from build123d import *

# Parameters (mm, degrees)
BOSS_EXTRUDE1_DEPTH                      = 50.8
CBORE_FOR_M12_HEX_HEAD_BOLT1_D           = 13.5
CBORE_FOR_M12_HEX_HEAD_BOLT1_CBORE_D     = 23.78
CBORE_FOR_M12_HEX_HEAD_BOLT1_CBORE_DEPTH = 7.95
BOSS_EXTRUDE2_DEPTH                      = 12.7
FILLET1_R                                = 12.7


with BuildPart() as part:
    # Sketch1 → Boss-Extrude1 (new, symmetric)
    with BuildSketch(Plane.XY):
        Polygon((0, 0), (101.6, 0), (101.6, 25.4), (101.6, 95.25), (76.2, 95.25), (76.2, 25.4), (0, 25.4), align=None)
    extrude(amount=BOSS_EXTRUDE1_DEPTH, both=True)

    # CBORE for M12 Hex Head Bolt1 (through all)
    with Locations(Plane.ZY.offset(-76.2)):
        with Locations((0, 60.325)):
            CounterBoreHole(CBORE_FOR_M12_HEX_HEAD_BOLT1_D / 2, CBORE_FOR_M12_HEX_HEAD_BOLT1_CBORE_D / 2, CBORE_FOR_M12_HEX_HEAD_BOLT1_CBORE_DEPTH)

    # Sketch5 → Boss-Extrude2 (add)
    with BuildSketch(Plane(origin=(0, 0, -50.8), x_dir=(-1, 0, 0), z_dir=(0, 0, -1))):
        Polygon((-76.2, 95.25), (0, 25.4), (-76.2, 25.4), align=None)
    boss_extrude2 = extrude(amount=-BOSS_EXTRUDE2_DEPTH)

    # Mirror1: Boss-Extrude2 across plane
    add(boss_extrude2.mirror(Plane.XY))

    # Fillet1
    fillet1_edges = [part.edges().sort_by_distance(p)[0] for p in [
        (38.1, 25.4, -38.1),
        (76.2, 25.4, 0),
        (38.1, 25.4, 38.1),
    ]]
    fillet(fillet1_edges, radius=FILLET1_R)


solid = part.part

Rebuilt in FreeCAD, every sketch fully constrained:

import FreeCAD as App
import Part
import Sketcher
Q = App.Units.Quantity


def edges_at(feature, points):
    """Names of the edges that pass closest to the given points."""
    edges = feature.Shape.Edges
    near = lambda p: min(range(len(edges)), key=lambda i: edges[i].distToShape(Part.Vertex(*p))[0])
    return sorted({f"Edge{near(p) + 1}" for p in points})

doc = App.newDocument("Part")
body = doc.addObject("PartDesign::Body", "Body")

# Sketch on XY plane
sketch1 = body.newObject("Sketcher::SketchObject", "Sketch")
sketch1.AttachmentSupport = (doc.getObject("XY_Plane"), [""])
sketch1.MapMode = "FlatFace"
sketch1.addGeometry(Part.LineSegment(App.Vector(0, 0, 0), App.Vector(101.6, 0, 0)), False)
sketch1.addGeometry(Part.LineSegment(App.Vector(101.6, 0, 0), App.Vector(101.6, 95.25, 0)), False)
sketch1.addGeometry(Part.LineSegment(App.Vector(101.6, 95.25, 0), App.Vector(76.2, 95.25, 0)), False)
sketch1.addGeometry(Part.LineSegment(App.Vector(76.2, 95.25, 0), App.Vector(76.2, 25.4, 0)), False)
sketch1.addGeometry(Part.LineSegment(App.Vector(76.2, 25.4, 0), App.Vector(0, 25.4, 0)), False)
sketch1.addGeometry(Part.LineSegment(App.Vector(0, 25.4, 0), App.Vector(0, 0, 0)), False)
sketch1.addConstraint(Sketcher.Constraint("Coincident", 0, 2, 1, 1))
sketch1.addConstraint(Sketcher.Constraint("Coincident", 1, 2, 2, 1))
sketch1.addConstraint(Sketcher.Constraint("Coincident", 2, 2, 3, 1))
sketch1.addConstraint(Sketcher.Constraint("Coincident", 3, 2, 4, 1))
sketch1.addConstraint(Sketcher.Constraint("Coincident", 4, 2, 5, 1))
sketch1.addConstraint(Sketcher.Constraint("Coincident", 5, 2, 0, 1))
sketch1.addConstraint(Sketcher.Constraint("Horizontal", 0))
sketch1.addConstraint(Sketcher.Constraint("Vertical", 1))
sketch1.addConstraint(Sketcher.Constraint("Horizontal", 2))
sketch1.addConstraint(Sketcher.Constraint("Vertical", 3))
sketch1.addConstraint(Sketcher.Constraint("Horizontal", 4))
sketch1.addConstraint(Sketcher.Constraint("Vertical", 5))
sketch1.addConstraint(Sketcher.Constraint("Coincident", 5, 2, -1, 1))
sketch1.addConstraint(Sketcher.Constraint("Equal", 2, 5))
sketch1.addConstraint(Sketcher.Constraint("DistanceX", 0, 1, 0, 2, Q("4 in")))
sketch1.addConstraint(Sketcher.Constraint("DistanceX", 2, 2, 2, 1, Q("1 in")))
sketch1.addConstraint(Sketcher.Constraint("DistanceY", 1, 1, 1, 2, Q("3.75 in")))
pad1 = body.newObject("PartDesign::Pad", "Pad")
pad1.Profile = sketch1
pad1.Length = Q("4 in")
pad1.Midplane = True

# Sketch on YZ plane
sketch2 = body.newObject("Sketcher::SketchObject", "Sketch001")
sketch2.AttachmentSupport = (doc.getObject("YZ_Plane"), [""])
sketch2.MapMode = "FlatFace"
sketch2.AttachmentOffset = App.Placement(App.Vector(0, 0, 3 * 25.4), App.Rotation())
sketch2.addGeometry(Part.Circle(App.Vector(60.325, 0, 0), App.Vector(0, 0, 1), 6.75), False)
sketch2.addConstraint(Sketcher.Constraint("PointOnObject", 0, 3, -1))
sketch2.addConstraint(Sketcher.Constraint("Diameter", 0, 13.5))
sketch2.addConstraint(Sketcher.Constraint("DistanceX", -1, 1, 0, 3, Q("2.375 in")))
doc.recompute()
hole = body.newObject("PartDesign::Hole", "Hole")
hole.Profile = sketch2
hole.ThreadType = "None"
hole.Diameter = 13.5
hole.DepthType = "ThroughAll"
hole.HoleCutType = "Counterbore"
hole.HoleCutDiameter = 23.78
hole.HoleCutDepth = 7.95
hole.Reversed = True

# Sketch on XY plane
sketch3 = body.newObject("Sketcher::SketchObject", "Sketch002")
sketch3.AttachmentSupport = (doc.getObject("XY_Plane"), [""])
sketch3.MapMode = "FlatFace"
sketch3.AttachmentOffset = App.Placement(App.Vector(0, 0, -2 * 25.4), App.Rotation())
sketch3.addGeometry(Part.LineSegment(App.Vector(0, 25.4, 0), App.Vector(76.2, 95.25, 0)), False)
sketch3.addGeometry(Part.LineSegment(App.Vector(76.2, 95.25, 0), App.Vector(76.2, 25.4, 0)), False)
sketch3.addGeometry(Part.LineSegment(App.Vector(76.2, 25.4, 0), App.Vector(0, 25.4, 0)), False)
sketch3.addConstraint(Sketcher.Constraint("Coincident", 0, 2, 1, 1))
sketch3.addConstraint(Sketcher.Constraint("Coincident", 1, 2, 2, 1))
sketch3.addConstraint(Sketcher.Constraint("Coincident", 2, 2, 0, 1))
sketch3.addConstraint(Sketcher.Constraint("Vertical", 1))
sketch3.addConstraint(Sketcher.Constraint("Horizontal", 2))
sketch3.addConstraint(Sketcher.Constraint("PointOnObject", 2, 2, -2))
sketch3.addConstraint(Sketcher.Constraint("DistanceX", 2, 2, 2, 1, Q("3 in")))
sketch3.addConstraint(Sketcher.Constraint("DistanceY", -1, 1, 1, 2, Q("1 in")))
sketch3.addConstraint(Sketcher.Constraint("DistanceY", 1, 2, 1, 1, Q("2.75 in")))
pad2 = body.newObject("PartDesign::Pad", "Pad001")
pad2.Profile = sketch3
pad2.Length = Q("0.5 in")
doc.recompute()

mirrored = body.newObject("PartDesign::Mirrored", "Mirrored")
mirrored.Originals = [pad2]
mirrored.MirrorPlane = (doc.getObject("XY_Plane"), [""])
body.Tip = mirrored
doc.recompute()

fillet = body.newObject("PartDesign::Fillet", "Fillet")
fillet.Base = (mirrored, edges_at(mirrored, [(38.1, 25.4, -38.1), (76.2, 25.4, 0), (38.1, 25.4, 38.1)]))
fillet.Radius = Q("0.5 in")

doc.recompute()
